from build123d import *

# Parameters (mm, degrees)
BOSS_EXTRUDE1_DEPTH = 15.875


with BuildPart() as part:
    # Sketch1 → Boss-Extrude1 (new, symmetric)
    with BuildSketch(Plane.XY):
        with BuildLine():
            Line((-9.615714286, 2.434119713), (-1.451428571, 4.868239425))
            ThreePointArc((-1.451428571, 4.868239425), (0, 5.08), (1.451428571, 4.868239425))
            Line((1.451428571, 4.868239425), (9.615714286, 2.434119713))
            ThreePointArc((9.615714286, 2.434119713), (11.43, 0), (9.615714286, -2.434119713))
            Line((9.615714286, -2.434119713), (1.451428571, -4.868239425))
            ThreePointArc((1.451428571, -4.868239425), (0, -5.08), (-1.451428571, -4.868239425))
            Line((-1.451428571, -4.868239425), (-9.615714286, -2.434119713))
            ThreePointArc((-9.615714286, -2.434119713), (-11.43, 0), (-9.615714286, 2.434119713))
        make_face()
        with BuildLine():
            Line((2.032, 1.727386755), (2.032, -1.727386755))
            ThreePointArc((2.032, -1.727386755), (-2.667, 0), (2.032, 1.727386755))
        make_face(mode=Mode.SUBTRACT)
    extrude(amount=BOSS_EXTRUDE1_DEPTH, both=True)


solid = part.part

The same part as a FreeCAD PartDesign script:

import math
import FreeCAD as App
import Part
import Sketcher

V = App.Vector
Q = App.Units.Quantity

doc = App.newDocument("Part")
params = doc.addObject("Spreadsheet::Sheet", "Params")
for row, (alias, value) in enumerate([
    ("sketch1_radius", "0.1 in"),
    ("sketch1_radius2", "0.2 in"),
    ("sketch1_radius3", "0.105 in"),
    ("pad1_length", "1.25 in"),
], start=1):
    params.set(f"A{row}", alias)
    params.set(f"B{row}", "=" + value)
    params.setAlias(f"B{row}", alias)

body = doc.addObject("PartDesign::Body", "Body")

# Sketch on XY plane
sketch1 = doc.addObject("Sketcher::SketchObject", "Sketch")
body.addObject(sketch1)
sketch1.AttachmentSupport = (doc.XY_Plane, [""])
sketch1.MapMode = "FlatFace"
sketch1.addGeometry(Part.LineSegment(V(-1.451429, 4.868239, 0), V(-9.615714, 2.43412, 0)), False)
sketch1.addGeometry(Part.ArcOfCircle(Part.Circle(V(-8.89, 0, 0), V(0, 0, 1), 2.54), math.radians(106.60155), math.radians(253.39845)), False)
sketch1.addGeometry(Part.LineSegment(V(-9.615714, -2.43412, 0), V(-1.451429, -4.868239, 0)), False)
sketch1.addGeometry(Part.ArcOfCircle(Part.Circle(V(0, 0, 0), V(0, 0, 1), 5.08), math.radians(-106.60155), math.radians(-73.39845)), False)
sketch1.addGeometry(Part.LineSegment(V(1.451429, -4.868239, 0), V(9.615714, -2.43412, 0)), False)
sketch1.addGeometry(Part.ArcOfCircle(Part.Circle(V(8.89, 0, 0), V(0, 0, 1), 2.54), math.radians(-73.39845), math.radians(73.39845)), False)
sketch1.addGeometry(Part.LineSegment(V(9.615714, 2.43412, 0), V(1.451429, 4.868239, 0)), False)
sketch1.addGeometry(Part.ArcOfCircle(Part.Circle(V(0, 0, 0), V(0, 0, 1), 5.08), math.radians(73.39845), math.radians(106.60155)), False)
sketch1.addGeometry(Part.LineSegment(V(2.032, 1.727387, 0), V(2.032, -1.727387, 0)), False)
sketch1.addGeometry(Part.ArcOfCircle(Part.Circle(V(0, 0, 0), V(0, 0, 1), 2.667), math.radians(40.367594), math.radians(319.632406)), False)
sketch1.addConstraint(Sketcher.Constraint("Tangent", 0, 2, 1, 1))
sketch1.addConstraint(Sketcher.Constraint("Tangent", 1, 2, 2, 1))
sketch1.addConstraint(Sketcher.Constraint("Tangent", 2, 2, 3, 1))
sketch1.addConstraint(Sketcher.Constraint("Tangent", 3, 2, 4, 1))
sketch1.addConstraint(Sketcher.Constraint("Tangent", 4, 2, 5, 1))
sketch1.addConstraint(Sketcher.Constraint("Tangent", 5, 2, 6, 1))
sketch1.addConstraint(Sketcher.Constraint("Tangent", 6, 2, 7, 1))
sketch1.addConstraint(Sketcher.Constraint("Tangent", 7, 2, 0, 1))
sketch1.addConstraint(Sketcher.Constraint("Coincident", 8, 1, 9, 1))
sketch1.addConstraint(Sketcher.Constraint("Coincident", 9, 2, 8, 2))
sketch1.addConstraint(Sketcher.Constraint("Vertical", 8))
sketch1.addConstraint(Sketcher.Constraint("Coincident", 3, 3, -1, 1))
sketch1.addConstraint(Sketcher.Constraint("Coincident", 7, 3, -1, 1))
sketch1.addConstraint(Sketcher.Constraint("Coincident", 9, 3, -1, 1))
sketch1.addConstraint(Sketcher.Constraint("Equal", 1, 5))
sketch1.addConstraint(Sketcher.Constraint("Equal", 3, 7))
sketch1.addConstraint(Sketcher.Constraint("Symmetric", 1, 3, 5, 3, -1, 1))
sketch1.addConstraint(Sketcher.Constraint("PointOnObject", 1, 3, -1))
sketch1.addConstraint(Sketcher.Constraint("Radius", 1, Q("0.1 in")))
sketch1.addConstraint(Sketcher.Constraint("Radius", 3, Q("0.2 in")))
sketch1.addConstraint(Sketcher.Constraint("Radius", 9, Q("0.105 in")))
sketch1.addConstraint(Sketcher.Constraint("DistanceX", 1, 3, 5, 3, Q("0.7 in")))
sketch1.addConstraint(Sketcher.Constraint("DistanceX", -1, 1, 8, 1, Q("0.08 in")))
sketch1.setExpression("Constraints[18]", "Params.sketch1_radius")
sketch1.setExpression("Constraints[19]", "Params.sketch1_radius2")
sketch1.setExpression("Constraints[20]", "Params.sketch1_radius3")
pad1 = doc.addObject("PartDesign::Pad", "Pad")
body.addObject(pad1)
pad1.Profile = sketch1
pad1.setExpression("Length", "Params.pad1_length")
pad1.Midplane = True

doc.recompute()
